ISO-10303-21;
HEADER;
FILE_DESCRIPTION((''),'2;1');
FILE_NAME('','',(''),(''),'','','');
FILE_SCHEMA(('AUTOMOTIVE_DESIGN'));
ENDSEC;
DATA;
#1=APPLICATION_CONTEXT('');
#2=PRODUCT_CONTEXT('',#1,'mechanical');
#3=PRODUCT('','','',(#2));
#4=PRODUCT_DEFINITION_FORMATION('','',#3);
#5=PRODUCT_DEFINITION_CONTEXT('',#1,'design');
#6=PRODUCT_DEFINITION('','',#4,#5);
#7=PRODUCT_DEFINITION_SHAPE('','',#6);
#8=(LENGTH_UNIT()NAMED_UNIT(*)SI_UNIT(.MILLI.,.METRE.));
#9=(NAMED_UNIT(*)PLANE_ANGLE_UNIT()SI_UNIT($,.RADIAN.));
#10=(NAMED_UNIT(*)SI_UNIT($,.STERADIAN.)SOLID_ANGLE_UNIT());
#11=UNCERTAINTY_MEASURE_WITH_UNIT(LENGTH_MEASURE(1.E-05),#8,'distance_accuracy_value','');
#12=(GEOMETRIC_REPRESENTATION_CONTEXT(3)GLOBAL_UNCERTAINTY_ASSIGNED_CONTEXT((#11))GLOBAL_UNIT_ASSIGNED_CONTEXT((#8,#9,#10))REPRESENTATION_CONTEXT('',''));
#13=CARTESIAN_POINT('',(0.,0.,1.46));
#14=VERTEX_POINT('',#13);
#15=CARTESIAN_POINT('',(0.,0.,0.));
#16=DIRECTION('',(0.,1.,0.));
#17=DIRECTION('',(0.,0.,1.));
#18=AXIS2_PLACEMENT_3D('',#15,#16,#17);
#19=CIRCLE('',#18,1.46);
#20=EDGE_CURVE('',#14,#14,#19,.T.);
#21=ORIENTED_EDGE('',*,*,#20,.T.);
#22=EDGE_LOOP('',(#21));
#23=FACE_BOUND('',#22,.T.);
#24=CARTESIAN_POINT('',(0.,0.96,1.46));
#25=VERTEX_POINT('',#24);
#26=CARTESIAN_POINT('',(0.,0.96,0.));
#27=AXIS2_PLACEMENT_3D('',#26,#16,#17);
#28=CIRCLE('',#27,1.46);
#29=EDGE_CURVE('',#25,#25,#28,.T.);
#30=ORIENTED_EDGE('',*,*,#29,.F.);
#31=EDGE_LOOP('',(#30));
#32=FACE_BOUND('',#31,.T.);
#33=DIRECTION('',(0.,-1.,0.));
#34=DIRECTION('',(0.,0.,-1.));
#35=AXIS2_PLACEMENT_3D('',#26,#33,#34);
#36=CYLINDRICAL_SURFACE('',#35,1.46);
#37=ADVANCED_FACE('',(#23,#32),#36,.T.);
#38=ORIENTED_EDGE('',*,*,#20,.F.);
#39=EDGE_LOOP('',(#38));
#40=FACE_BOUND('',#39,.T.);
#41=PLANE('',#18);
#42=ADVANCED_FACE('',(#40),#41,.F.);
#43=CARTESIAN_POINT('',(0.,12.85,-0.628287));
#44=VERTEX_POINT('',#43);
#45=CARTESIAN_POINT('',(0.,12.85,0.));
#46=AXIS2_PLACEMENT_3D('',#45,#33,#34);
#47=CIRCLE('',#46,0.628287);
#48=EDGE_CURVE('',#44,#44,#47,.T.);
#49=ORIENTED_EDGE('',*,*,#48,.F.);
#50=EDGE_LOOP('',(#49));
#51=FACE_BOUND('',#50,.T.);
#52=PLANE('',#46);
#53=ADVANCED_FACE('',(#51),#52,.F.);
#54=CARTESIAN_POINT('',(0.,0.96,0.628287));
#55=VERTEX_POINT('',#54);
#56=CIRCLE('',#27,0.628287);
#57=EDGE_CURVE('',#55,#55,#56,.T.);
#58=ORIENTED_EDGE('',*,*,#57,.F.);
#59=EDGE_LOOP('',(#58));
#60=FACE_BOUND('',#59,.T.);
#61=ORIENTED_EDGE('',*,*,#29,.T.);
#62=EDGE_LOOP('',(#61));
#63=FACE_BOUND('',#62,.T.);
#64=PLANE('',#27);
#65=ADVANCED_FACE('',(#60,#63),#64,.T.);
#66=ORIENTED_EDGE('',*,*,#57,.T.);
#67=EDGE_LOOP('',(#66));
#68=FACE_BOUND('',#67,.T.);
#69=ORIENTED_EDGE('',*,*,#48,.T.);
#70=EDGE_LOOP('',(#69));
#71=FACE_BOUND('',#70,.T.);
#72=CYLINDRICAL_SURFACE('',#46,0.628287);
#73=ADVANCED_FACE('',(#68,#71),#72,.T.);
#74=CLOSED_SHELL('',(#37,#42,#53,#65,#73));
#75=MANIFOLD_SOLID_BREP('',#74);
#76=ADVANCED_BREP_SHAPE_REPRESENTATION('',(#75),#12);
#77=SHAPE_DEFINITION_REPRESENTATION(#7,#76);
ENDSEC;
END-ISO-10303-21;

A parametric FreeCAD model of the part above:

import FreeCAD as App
import Part
import Sketcher
from FreeCAD import Vector
Q = App.Units.Quantity

doc = App.newDocument("Part")
body = doc.addObject("PartDesign::Body", "Body")

sketch1 = doc.addObject("Sketcher::SketchObject", "Sketch")
body.addObject(sketch1)
sketch1.AttachmentSupport = (doc.XZ_Plane, [""])
sketch1.MapMode = "FlatFace"
sketch1.addGeometry(Part.Circle(Vector(0, 0, 0), Vector(0, 0, 1), 1.5), False)
sketch1.addConstraint([
    Sketcher.Constraint("Coincident", 0, 3, -1, 1),
    Sketcher.Constraint("Diameter", 0, Q("2.92 mm")),
])
pad1 = doc.addObject("PartDesign::Pad", "Pad")
body.addObject(pad1)
pad1.Profile = sketch1
pad1.Length = 0.96
pad1.Reversed = True

sketch2 = doc.addObject("Sketcher::SketchObject", "Sketch001")
body.addObject(sketch2)
sketch2.AttachmentSupport = (doc.XZ_Plane, [""])
sketch2.MapMode = "FlatFace"
sketch2.addGeometry(Part.Circle(Vector(0, 0, 0), Vector(0, 0, 1), 0.6), False)
sketch2.addConstraint([
    Sketcher.Constraint("Coincident", 0, 3, -1, 1),
    Sketcher.Constraint("Diameter", 0, Q("1.256575 mm")),
])
pad2 = doc.addObject("PartDesign::Pad", "Pad001")
body.addObject(pad2)
pad2.Profile = sketch2
pad2.Length = 12.85
pad2.Reversed = True

doc.recompute()
